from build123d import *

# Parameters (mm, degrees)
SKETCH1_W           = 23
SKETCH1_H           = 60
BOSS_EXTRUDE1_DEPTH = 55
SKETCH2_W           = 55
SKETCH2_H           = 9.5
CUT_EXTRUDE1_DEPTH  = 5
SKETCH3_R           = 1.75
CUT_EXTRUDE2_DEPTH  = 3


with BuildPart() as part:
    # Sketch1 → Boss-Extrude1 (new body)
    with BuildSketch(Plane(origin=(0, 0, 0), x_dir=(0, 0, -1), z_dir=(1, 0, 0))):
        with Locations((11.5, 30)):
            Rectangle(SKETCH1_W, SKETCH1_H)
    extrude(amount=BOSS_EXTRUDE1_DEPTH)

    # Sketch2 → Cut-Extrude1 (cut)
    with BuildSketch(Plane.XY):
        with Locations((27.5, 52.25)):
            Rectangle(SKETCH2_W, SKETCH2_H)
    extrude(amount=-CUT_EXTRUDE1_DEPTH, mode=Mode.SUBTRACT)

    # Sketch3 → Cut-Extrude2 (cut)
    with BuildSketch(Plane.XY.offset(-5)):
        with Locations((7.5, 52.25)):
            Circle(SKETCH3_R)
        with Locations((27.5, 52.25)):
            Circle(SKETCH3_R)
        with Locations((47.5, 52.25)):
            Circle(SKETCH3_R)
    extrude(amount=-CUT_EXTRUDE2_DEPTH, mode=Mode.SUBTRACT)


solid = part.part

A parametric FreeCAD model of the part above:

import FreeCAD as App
import Part
import Sketcher

V = App.Vector


def add_polygon(sketch, points):
    """Adds a closed chain of lines whose ends are joined by coincident constraints."""
    first, n = sketch.GeometryCount, len(points)
    for a, b in zip(points, points[1:] + points[:1]):
        sketch.addGeometry(Part.LineSegment(App.Vector(*a, 0), App.Vector(*b, 0)), False)
    for i in range(n):
        sketch.addConstraint(Sketcher.Constraint("Coincident", first + i, 2, first + (i + 1) % n, 1))

doc = App.newDocument("Part")
body = doc.addObject("PartDesign::Body", "Body")

sketch1 = body.newObject("Sketcher::SketchObject", "Sketch")
sketch1.AttachmentSupport = (doc.getObject("YZ_Plane"), [""])
sketch1.MapMode = "FlatFace"
add_polygon(sketch1, [(60, 0), (0, 0), (0, -23), (60, -23)])
sketch1.addConstraint([
    Sketcher.Constraint("Horizontal", 0),
    Sketcher.Constraint("Vertical", 1),
    Sketcher.Constraint("Horizontal", 2),
    Sketcher.Constraint("Vertical", 3),
    Sketcher.Constraint("Coincident", 0, 2, -1, 1),
    Sketcher.Constraint("DistanceX", 0, 2, 0, 1, 60.0),
    Sketcher.Constraint("DistanceY", 1, 2, 1, 1, 23.0),
])
pad1 = body.newObject("PartDesign::Pad", "Pad")
pad1.Profile = sketch1
pad1.Length = 55

sketch2 = body.newObject("Sketcher::SketchObject", "Sketch001")
sketch2.AttachmentSupport = (doc.getObject("XY_Plane"), [""])
sketch2.MapMode = "FlatFace"
add_polygon(sketch2, [(0, 57), (0, 48), (55, 48), (55, 57)])
sketch2.addConstraint([
    Sketcher.Constraint("Vertical", 0),
    Sketcher.Constraint("Horizontal", 1),
    Sketcher.Constraint("Vertical", 2),
    Sketcher.Constraint("Horizontal", 3),
    Sketcher.Constraint("PointOnObject", 0, 2, -2),
    Sketcher.Constraint("DistanceX", 1, 1, 1, 2, 55.0),
    Sketcher.Constraint("DistanceY", 0, 2, 0, 1, 9.5),
    Sketcher.Constraint("DistanceY", -1, 1, 2, 2, 57.0),
])
pocket1 = body.newObject("PartDesign::Pocket", "Pocket")
pocket1.Profile = sketch2
pocket1.Length = 5

sketch3 = body.newObject("Sketcher::SketchObject", "Sketch002")
sketch3.AttachmentSupport = (doc.getObject("XY_Plane"), [""])
sketch3.MapMode = "FlatFace"
sketch3.AttachmentOffset = App.Placement(V(0, 0, -5), App.Rotation())
sketch3.addGeometry([
    Part.Circle(V(7.5, 52.2, 0), V(0, 0, 1), 1.8),
    Part.Circle(V(27.5, 52.2, 0), V(0, 0, 1), 1.8),
    Part.Circle(V(47.5, 52.2, 0), V(0, 0, 1), 1.8),
], False)
sketch3.addConstraint([
    Sketcher.Constraint("Equal", 0, 1),
    Sketcher.Constraint("Equal", 1, 2),
    Sketcher.Constraint("Horizontal", 0, 3, 1, 3),
    Sketcher.Constraint("Horizontal", 1, 3, 2, 3),
    Sketcher.Constraint("Diameter", 0, 3.5),
    Sketcher.Constraint("DistanceX", 0, 3, 1, 3, 20.0),
    Sketcher.Constraint("DistanceX", 1, 3, 2, 3, 20.0),
    Sketcher.Constraint("DistanceX", -1, 1, 0, 3, 7.5),
    Sketcher.Constraint("DistanceY", -1, 1, 0, 3, 52.25),
])
pocket2 = body.newObject("PartDesign::Pocket", "Pocket001")
pocket2.Profile = sketch3
pocket2.Length = 3

doc.recompute()
